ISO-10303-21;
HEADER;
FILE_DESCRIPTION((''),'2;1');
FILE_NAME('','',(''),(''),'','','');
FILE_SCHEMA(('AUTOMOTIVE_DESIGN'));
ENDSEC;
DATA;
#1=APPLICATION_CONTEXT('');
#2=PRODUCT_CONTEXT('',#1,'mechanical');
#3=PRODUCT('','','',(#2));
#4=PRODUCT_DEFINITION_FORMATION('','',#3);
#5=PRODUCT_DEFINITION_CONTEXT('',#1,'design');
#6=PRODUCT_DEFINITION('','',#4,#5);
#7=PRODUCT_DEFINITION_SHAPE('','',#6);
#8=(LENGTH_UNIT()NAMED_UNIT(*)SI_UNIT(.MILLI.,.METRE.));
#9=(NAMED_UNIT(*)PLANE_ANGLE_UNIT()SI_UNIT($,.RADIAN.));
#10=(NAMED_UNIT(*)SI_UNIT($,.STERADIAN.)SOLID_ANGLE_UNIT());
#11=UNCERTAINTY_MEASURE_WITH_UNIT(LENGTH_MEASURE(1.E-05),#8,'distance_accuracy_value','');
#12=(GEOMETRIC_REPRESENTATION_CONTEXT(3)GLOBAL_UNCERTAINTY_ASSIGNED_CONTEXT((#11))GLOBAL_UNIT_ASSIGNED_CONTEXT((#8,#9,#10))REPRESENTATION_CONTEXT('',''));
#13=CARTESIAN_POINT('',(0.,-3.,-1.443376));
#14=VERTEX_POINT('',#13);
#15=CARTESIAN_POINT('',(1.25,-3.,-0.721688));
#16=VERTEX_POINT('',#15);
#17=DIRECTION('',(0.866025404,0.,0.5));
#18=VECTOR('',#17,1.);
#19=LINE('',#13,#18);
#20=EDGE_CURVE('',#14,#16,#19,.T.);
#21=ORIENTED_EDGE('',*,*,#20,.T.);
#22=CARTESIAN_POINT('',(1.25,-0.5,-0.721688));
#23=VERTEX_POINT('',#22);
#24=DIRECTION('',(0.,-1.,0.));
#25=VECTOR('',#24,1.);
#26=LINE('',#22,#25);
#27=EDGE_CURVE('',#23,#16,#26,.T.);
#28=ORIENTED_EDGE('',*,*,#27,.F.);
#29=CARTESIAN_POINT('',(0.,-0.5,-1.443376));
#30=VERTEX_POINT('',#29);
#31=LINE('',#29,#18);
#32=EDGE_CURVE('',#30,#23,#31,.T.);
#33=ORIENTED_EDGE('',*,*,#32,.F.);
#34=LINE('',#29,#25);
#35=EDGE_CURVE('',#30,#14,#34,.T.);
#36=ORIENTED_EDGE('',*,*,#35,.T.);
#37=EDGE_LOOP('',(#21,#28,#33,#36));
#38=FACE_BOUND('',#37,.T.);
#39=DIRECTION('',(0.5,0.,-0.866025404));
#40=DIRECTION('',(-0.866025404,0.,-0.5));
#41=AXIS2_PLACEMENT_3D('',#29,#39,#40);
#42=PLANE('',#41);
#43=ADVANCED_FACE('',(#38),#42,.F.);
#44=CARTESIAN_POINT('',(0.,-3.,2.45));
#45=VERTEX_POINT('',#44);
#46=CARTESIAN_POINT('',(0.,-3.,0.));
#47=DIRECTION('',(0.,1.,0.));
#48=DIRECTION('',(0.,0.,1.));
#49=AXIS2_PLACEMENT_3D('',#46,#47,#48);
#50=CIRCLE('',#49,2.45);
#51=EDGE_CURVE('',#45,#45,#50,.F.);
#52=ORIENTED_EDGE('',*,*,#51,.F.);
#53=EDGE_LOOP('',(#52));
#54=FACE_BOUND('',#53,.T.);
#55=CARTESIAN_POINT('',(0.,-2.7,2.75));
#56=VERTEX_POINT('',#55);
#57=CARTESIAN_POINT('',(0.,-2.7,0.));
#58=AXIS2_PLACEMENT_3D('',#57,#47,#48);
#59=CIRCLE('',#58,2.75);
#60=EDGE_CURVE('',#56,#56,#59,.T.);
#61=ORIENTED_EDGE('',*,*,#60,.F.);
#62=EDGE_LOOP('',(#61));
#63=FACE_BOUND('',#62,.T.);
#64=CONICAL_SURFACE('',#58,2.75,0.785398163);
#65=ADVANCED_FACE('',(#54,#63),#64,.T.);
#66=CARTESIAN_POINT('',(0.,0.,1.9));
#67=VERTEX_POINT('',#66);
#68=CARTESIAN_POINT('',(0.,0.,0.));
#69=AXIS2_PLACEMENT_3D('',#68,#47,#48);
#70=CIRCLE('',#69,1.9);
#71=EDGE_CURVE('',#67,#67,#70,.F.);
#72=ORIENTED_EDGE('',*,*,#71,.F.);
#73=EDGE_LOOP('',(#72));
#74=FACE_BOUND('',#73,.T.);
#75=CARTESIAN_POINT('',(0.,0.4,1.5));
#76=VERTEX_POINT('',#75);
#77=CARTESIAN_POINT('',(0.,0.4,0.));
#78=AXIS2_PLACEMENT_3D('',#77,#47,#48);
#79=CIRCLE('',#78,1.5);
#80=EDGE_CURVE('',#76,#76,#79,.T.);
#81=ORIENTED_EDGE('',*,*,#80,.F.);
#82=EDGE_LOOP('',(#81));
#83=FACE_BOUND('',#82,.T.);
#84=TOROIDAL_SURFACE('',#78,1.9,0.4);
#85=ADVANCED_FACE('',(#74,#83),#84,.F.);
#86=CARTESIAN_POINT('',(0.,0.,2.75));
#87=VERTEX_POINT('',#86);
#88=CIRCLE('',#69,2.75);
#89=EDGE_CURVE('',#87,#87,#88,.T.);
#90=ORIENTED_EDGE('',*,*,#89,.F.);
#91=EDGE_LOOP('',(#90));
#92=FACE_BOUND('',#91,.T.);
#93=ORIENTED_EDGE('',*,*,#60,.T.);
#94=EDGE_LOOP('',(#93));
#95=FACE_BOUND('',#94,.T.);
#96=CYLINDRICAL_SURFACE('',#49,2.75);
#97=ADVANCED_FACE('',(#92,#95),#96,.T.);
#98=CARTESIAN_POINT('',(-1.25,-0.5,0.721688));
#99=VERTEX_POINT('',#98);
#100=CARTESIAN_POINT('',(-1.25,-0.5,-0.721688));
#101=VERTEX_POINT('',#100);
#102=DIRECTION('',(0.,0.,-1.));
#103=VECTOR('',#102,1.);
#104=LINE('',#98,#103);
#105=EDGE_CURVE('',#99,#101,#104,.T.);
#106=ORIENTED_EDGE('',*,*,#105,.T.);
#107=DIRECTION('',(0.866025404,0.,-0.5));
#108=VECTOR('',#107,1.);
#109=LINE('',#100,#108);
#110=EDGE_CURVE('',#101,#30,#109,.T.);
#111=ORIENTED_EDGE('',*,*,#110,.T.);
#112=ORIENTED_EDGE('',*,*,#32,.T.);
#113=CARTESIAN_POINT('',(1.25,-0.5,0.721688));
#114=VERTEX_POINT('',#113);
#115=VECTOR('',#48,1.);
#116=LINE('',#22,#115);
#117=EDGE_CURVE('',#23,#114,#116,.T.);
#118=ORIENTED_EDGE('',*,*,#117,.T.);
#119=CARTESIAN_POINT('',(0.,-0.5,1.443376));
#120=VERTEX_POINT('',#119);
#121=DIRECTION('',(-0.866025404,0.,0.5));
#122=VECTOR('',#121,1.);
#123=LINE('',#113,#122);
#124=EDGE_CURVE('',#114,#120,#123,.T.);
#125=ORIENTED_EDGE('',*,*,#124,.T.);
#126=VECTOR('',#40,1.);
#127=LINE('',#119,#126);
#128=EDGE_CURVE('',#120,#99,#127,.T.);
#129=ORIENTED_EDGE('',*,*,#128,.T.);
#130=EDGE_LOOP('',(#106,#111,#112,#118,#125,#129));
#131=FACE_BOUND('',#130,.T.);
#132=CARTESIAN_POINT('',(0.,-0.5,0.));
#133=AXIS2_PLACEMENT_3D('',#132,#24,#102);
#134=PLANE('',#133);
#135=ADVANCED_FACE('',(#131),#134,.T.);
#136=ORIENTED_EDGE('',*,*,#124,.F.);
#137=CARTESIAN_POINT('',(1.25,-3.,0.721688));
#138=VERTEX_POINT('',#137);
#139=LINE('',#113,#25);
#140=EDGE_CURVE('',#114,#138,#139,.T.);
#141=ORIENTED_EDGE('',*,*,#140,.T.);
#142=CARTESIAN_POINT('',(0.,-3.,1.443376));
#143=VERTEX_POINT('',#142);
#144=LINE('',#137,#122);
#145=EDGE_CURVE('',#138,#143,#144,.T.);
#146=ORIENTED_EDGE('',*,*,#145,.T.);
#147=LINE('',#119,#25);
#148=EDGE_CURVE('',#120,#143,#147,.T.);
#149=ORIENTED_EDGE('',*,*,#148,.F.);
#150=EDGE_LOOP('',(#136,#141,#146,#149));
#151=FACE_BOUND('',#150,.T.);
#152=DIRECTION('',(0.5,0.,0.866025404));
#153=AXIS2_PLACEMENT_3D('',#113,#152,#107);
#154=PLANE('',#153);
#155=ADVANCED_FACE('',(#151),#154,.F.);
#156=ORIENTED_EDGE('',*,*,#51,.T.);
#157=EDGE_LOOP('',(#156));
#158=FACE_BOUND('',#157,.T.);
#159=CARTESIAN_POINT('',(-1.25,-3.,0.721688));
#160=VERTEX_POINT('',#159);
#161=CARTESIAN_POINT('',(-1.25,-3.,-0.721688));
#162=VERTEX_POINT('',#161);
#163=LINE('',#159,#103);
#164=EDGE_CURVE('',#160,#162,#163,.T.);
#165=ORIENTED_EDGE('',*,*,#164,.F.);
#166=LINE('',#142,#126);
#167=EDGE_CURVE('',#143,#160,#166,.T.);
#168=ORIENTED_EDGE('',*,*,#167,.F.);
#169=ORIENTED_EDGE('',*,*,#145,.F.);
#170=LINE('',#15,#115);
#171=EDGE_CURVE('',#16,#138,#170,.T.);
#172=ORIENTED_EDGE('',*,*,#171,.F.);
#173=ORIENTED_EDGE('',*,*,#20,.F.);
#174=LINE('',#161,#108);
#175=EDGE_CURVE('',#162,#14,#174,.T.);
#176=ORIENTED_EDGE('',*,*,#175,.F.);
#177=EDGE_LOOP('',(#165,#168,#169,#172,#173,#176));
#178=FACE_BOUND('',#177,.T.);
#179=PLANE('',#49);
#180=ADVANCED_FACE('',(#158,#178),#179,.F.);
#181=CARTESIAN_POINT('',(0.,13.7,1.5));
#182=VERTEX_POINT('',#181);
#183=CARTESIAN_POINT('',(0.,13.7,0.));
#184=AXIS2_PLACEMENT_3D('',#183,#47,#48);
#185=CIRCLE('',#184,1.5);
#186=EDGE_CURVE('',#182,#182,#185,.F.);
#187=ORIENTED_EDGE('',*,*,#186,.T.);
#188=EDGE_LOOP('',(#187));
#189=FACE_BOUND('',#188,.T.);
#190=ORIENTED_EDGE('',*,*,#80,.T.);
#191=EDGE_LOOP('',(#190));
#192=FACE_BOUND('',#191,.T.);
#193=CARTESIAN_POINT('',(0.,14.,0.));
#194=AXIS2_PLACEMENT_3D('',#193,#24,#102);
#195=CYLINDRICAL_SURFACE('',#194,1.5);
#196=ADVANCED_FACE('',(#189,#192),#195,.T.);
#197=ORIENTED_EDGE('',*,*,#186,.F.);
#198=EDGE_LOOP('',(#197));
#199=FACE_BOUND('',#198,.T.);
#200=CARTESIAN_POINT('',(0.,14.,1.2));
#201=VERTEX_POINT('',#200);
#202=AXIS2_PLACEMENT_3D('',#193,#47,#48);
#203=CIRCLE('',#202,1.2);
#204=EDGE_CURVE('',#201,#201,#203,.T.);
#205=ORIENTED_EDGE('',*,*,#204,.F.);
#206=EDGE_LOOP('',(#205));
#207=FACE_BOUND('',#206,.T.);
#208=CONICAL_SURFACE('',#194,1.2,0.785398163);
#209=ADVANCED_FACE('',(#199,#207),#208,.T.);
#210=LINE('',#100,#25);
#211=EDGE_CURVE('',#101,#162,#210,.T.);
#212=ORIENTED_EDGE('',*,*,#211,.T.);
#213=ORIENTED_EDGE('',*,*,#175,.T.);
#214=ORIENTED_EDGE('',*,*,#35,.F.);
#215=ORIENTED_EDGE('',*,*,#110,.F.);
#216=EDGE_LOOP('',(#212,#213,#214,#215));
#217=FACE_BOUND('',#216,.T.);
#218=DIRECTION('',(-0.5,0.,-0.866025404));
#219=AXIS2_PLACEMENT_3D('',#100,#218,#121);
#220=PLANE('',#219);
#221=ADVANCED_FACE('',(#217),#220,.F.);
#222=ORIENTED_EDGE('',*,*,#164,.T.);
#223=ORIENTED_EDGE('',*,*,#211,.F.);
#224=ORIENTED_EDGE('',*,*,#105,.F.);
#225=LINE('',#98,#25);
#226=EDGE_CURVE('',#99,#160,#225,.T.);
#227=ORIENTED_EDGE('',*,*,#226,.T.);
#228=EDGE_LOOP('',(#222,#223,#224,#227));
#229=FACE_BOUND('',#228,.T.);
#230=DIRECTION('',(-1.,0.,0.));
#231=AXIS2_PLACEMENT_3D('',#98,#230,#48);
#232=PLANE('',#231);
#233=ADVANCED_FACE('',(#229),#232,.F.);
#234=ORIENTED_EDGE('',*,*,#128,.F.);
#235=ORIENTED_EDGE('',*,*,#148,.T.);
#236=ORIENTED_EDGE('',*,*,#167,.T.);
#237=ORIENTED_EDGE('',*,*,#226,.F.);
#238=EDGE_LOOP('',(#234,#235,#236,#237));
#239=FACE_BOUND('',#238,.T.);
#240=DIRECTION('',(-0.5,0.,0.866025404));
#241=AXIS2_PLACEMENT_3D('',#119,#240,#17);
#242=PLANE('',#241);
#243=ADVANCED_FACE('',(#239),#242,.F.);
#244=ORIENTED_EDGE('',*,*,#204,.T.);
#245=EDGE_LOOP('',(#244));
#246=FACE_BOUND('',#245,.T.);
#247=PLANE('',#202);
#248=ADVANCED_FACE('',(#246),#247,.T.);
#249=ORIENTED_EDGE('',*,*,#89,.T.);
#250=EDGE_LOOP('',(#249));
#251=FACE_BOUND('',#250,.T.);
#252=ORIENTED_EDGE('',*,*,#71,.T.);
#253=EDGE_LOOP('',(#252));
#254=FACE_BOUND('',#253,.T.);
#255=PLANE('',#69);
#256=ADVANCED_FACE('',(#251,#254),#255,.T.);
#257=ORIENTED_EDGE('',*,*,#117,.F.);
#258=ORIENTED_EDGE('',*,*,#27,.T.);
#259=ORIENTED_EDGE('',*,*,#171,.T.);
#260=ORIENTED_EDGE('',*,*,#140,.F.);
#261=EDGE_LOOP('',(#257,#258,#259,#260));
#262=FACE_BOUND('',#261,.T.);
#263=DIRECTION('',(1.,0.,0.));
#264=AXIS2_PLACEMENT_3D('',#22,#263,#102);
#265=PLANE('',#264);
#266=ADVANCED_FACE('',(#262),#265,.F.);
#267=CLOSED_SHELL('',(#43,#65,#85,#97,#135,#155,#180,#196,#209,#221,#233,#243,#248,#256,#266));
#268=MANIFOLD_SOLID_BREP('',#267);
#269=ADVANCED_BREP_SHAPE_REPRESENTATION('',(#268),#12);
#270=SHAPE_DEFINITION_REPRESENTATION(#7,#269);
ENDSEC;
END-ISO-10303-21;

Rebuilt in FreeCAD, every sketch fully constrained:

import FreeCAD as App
import Part
import Sketcher
from FreeCAD import Vector
Q = App.Units.Quantity


def edges_at(feature, points):
    """Names of the edges that pass closest to the given points."""
    edges = feature.Shape.Edges
    near = lambda p: min(range(len(edges)), key=lambda i: edges[i].distToShape(Part.Vertex(*p))[0])
    return sorted({f"Edge{near(p) + 1}" for p in points})

doc = App.newDocument("Part")
body = doc.addObject("PartDesign::Body", "Body")

sketch1 = body.newObject("Sketcher::SketchObject", "Sketch")
sketch1.AttachmentSupport = (doc.getObject("XZ_Plane"), [""])
sketch1.MapMode = "FlatFace"
sketch1.addGeometry(Part.Circle(Vector(0, 0, 0), Vector(0, 0, 1), 1.5), False)
sketch1.addConstraint([
    Sketcher.Constraint("Coincident", 0, 3, -1, 1),
    Sketcher.Constraint("Diameter", 0, 3.0),
])
pad1 = body.newObject("PartDesign::Pad", "Pad")
pad1.Profile = sketch1
pad1.Length = 14
pad1.Reversed = True

sketch2 = body.newObject("Sketcher::SketchObject", "Sketch001")
sketch2.AttachmentSupport = (doc.getObject("XZ_Plane"), [""])
sketch2.MapMode = "FlatFace"
sketch2.addGeometry(Part.Circle(Vector(0, 0, 0), Vector(0, 0, 1), 2.8), False)
sketch2.addConstraint([
    Sketcher.Constraint("Coincident", 0, 3, -1, 1),
    Sketcher.Constraint("Diameter", 0, 5.5),
])
pad2 = body.newObject("PartDesign::Pad", "Pad001")
pad2.Profile = sketch2
pad2.Length = 3
doc.recompute()

fillet = body.newObject("PartDesign::Fillet", "Fillet")
fillet.Base = (pad2, edges_at(pad2, [(0, 0, -1.5)]))
fillet.Radius = 0.4
doc.recompute()

chamfer = body.newObject("PartDesign::Chamfer", "Chamfer")
chamfer.Base = (fillet, edges_at(fillet, [(0, 14, -1.5), (0, -3, -2.75)]))
chamfer.Size = 0.3

sketch3 = body.newObject("Sketcher::SketchObject", "Sketch002")
sketch3.AttachmentSupport = (doc.getObject("XZ_Plane"), [""])
sketch3.MapMode = "FlatFace"
sketch3.AttachmentOffset = App.Placement(Vector(0, 0, 3), App.Rotation())
sketch3.addGeometry([
    Part.LineSegment(Vector(0, 1.4, 0), Vector(-1.2, 0.7, 0)),
    Part.LineSegment(Vector(-1.2, 0.7, 0), Vector(-1.2, -0.7, 0)),
    Part.LineSegment(Vector(-1.2, -0.7, 0), Vector(0, -1.4, 0)),
    Part.LineSegment(Vector(0, -1.4, 0), Vector(1.2, -0.7, 0)),
    Part.LineSegment(Vector(1.2, -0.7, 0), Vector(1.2, 0.7, 0)),
    Part.LineSegment(Vector(1.2, 0.7, 0), Vector(0, 1.4, 0)),
], False)
sketch3.addConstraint([
    Sketcher.Constraint("Coincident", 0, 2, 1, 1),
    Sketcher.Constraint("Coincident", 1, 2, 2, 1),
    Sketcher.Constraint("Coincident", 2, 2, 3, 1),
    Sketcher.Constraint("Coincident", 3, 2, 4, 1),
    Sketcher.Constraint("Coincident", 4, 2, 5, 1),
    Sketcher.Constraint("Coincident", 5, 2, 0, 1),
    Sketcher.Constraint("Vertical", 1),
    Sketcher.Constraint("Vertical", 4),
    Sketcher.Constraint("Symmetric", 0, 2, 3, 2, -1, 1),
    Sketcher.Constraint("Symmetric", 2, 2, 5, 2, -1, 1),
    Sketcher.Constraint("PointOnObject", 2, 2, -2),
    Sketcher.Constraint("Parallel", 2, 5),
    Sketcher.Constraint("Horizontal", 1, 2, 3, 2),
    Sketcher.Constraint("Angle", 0, Q("-150 deg")),
    Sketcher.Constraint("DistanceX", 1, 2, 3, 2, 2.5),
    Sketcher.Constraint("DistanceY", 1, 2, 1, 1, 1.443376),
])
pocket1 = body.newObject("PartDesign::Pocket", "Pocket")
pocket1.Profile = sketch3
pocket1.Length = 2.5

doc.recompute()
